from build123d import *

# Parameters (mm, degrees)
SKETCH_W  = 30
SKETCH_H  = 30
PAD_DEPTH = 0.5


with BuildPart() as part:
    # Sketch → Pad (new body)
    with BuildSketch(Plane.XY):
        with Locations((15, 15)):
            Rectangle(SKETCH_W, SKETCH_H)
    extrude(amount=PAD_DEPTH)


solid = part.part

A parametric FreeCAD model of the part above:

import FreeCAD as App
import Part
import Sketcher
from FreeCAD import Vector
Q = App.Units.Quantity

doc = App.newDocument("Part")
params = doc.addObject("Spreadsheet::Sheet", "Params")
for row, (alias, value) in enumerate([
    ("sketch1_width", "30 mm"),
    ("pad1_length", "0.5 mm"),
], start=1):
    params.set(f"A{row}", alias)
    params.set(f"B{row}", "=" + value)
    params.setAlias(f"B{row}", alias)

body = doc.addObject("PartDesign::Body", "Body")

# Sketch on XY plane
sketch1 = body.newObject("Sketcher::SketchObject", "Sketch")
sketch1.AttachmentSupport = (doc.getObject("XY_Plane"), [""])
sketch1.MapMode = "FlatFace"
sketch1.addGeometry([
    Part.LineSegment(Vector(0, 30, 0), Vector(0, 0, 0)),
    Part.LineSegment(Vector(0, 0, 0), Vector(30, 0, 0)),
    Part.LineSegment(Vector(30, 0, 0), Vector(30, 30, 0)),
    Part.LineSegment(Vector(30, 30, 0), Vector(0, 30, 0)),
], False)
sketch1.addConstraint([
    Sketcher.Constraint("Coincident", 0, 2, 1, 1),
    Sketcher.Constraint("Coincident", 1, 2, 2, 1),
    Sketcher.Constraint("Coincident", 2, 2, 3, 1),
    Sketcher.Constraint("Coincident", 3, 2, 0, 1),
    Sketcher.Constraint("Vertical", 0),
    Sketcher.Constraint("Horizontal", 1),
    Sketcher.Constraint("Vertical", 2),
    Sketcher.Constraint("Horizontal", 3),
    Sketcher.Constraint("Coincident", 0, 2, -1, 1),
    Sketcher.Constraint("Equal", 3, 0),
    Sketcher.Constraint("DistanceX", 1, 1, 1, 2, Q("30 mm")),
])
sketch1.setExpression("Constraints[10]", "Params.sketch1_width")
pad1 = body.newObject("PartDesign::Pad", "Pad")
pad1.Profile = sketch1
pad1.setExpression("Length", "Params.pad1_length")

doc.recompute()
